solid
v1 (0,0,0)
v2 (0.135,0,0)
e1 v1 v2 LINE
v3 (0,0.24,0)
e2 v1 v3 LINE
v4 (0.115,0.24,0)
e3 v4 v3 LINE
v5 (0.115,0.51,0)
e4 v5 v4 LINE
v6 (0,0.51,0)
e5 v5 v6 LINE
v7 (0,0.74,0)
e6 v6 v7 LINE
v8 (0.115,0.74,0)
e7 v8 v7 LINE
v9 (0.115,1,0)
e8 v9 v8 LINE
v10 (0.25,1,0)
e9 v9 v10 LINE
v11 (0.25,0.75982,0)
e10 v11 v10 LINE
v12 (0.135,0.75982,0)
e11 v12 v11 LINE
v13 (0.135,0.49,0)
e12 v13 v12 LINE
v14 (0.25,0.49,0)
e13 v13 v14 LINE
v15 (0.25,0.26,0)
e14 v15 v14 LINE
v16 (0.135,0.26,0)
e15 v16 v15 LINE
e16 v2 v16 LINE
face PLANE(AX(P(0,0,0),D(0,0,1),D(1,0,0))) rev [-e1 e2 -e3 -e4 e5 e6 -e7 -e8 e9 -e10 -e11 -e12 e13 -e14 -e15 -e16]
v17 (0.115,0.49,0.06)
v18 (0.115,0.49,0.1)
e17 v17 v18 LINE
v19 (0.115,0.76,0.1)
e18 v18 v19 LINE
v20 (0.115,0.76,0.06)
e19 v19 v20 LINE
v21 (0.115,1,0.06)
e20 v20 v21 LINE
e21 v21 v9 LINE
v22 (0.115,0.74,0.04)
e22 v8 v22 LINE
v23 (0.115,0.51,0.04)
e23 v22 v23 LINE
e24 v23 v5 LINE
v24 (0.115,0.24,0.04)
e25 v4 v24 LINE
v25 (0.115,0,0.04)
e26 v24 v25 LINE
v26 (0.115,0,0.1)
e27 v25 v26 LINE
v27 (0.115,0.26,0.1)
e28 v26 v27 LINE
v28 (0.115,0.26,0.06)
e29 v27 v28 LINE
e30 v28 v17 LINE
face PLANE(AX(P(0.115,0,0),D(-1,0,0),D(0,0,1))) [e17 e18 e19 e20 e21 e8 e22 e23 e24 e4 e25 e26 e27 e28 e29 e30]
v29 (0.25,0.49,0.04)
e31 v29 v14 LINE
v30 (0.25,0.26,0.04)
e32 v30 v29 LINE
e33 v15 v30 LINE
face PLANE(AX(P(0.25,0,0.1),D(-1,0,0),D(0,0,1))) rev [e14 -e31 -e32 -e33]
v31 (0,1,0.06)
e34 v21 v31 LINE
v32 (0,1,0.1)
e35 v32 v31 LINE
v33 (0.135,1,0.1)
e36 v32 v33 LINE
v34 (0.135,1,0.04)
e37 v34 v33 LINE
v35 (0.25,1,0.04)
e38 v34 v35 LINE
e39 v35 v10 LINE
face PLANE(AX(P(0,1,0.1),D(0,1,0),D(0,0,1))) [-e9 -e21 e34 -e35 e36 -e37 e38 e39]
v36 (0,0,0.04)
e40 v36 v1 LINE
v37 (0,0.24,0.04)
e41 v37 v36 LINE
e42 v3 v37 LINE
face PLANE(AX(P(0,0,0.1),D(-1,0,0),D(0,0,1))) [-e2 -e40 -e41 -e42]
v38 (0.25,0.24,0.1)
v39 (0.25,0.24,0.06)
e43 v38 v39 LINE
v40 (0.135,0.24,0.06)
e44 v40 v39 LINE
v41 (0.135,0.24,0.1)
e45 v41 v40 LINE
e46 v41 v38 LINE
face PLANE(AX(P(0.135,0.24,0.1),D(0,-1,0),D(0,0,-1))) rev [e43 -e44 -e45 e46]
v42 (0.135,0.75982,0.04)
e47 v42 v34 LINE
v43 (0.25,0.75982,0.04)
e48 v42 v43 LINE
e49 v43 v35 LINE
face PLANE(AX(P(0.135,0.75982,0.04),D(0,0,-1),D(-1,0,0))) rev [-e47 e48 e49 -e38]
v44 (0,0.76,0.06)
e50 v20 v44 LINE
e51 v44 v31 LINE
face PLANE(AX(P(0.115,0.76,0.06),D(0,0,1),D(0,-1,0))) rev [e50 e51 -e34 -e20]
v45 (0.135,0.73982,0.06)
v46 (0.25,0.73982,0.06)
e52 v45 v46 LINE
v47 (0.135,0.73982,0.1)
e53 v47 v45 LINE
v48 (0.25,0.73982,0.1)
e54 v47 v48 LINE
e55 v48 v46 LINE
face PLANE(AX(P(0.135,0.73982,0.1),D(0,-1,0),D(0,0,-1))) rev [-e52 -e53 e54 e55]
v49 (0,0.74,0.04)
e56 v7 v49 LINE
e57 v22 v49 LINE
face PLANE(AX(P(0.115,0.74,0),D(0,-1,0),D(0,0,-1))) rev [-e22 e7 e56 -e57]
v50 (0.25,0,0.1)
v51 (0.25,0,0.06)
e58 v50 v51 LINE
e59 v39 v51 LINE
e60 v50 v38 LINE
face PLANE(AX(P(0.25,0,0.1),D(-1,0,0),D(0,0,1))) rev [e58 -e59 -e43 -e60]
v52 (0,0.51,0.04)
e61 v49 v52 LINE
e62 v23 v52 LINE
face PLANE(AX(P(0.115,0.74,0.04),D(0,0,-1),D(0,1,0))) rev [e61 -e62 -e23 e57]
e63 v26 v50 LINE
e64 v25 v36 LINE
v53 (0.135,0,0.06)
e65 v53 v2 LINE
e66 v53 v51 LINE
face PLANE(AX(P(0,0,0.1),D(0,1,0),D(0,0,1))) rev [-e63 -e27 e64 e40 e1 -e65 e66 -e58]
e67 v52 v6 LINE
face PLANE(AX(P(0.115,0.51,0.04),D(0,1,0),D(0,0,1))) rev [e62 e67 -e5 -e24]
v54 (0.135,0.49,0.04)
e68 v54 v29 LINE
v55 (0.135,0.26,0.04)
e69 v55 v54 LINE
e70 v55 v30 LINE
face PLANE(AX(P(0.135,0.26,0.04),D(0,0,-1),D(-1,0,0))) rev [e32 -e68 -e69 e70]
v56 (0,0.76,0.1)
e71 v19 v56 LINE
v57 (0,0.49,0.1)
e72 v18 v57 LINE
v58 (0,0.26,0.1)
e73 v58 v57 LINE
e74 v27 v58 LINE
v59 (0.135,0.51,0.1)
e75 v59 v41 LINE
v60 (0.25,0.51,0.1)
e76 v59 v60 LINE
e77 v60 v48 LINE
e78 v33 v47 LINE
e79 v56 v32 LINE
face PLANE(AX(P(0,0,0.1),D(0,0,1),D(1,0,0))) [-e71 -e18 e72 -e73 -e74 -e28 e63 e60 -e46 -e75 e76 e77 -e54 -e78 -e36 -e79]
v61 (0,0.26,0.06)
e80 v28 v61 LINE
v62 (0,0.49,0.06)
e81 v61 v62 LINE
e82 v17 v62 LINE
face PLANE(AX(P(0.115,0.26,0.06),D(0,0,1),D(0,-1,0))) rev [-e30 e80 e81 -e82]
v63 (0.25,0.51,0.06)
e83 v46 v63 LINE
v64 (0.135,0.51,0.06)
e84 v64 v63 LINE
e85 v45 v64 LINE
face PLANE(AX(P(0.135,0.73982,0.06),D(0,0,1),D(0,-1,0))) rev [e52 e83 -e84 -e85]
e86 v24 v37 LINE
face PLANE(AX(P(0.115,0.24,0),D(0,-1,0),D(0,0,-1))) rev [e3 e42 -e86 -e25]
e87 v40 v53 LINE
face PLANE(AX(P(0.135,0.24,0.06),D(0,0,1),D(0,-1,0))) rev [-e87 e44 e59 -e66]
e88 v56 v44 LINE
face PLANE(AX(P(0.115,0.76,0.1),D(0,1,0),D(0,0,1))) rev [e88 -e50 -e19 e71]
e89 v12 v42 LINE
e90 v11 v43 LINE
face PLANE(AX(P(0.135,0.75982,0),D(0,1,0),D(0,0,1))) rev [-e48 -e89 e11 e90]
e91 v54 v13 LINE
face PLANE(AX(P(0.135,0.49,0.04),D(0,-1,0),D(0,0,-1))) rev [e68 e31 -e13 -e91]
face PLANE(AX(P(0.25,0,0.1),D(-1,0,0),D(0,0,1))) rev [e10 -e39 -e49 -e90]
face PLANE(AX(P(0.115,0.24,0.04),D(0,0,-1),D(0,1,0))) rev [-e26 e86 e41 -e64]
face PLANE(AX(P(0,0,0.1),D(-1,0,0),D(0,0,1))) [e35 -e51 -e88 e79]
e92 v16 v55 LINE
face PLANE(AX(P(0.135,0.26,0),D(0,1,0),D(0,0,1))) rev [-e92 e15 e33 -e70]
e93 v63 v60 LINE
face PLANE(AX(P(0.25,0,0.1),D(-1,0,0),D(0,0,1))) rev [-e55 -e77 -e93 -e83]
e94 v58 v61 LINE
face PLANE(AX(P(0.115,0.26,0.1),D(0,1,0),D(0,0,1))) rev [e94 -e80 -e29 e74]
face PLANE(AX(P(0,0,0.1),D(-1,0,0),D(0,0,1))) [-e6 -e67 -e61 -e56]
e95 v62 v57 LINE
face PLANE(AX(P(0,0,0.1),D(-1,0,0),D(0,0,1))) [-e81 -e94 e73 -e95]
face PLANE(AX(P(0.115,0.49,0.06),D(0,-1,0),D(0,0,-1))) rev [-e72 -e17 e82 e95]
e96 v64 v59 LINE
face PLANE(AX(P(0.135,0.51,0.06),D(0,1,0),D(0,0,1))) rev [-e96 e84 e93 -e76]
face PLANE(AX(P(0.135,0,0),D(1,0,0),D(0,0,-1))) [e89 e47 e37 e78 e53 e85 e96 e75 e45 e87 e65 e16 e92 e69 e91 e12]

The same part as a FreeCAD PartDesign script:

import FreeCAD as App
import Part
import Sketcher
from FreeCAD import Vector

doc = App.newDocument("Part")
params = doc.addObject("Spreadsheet::Sheet", "Params")
for row, (alias, value) in enumerate([
    ("sketch1_height", "1 mm"),
    ("sketch1_width", "0.25 mm"),
    ("pad1_length", "0.1 mm"),
    ("sketch2_width", "0.26 mm"),
    ("sketch2_width2", "0.23 mm"),
    ("sketch2_width3", "0.27 mm"),
    ("sketch2_height", "0.06 mm"),
    ("sketch2_height2", "0.04 mm"),
    ("pocket1_length", "0.115 mm"),
    ("sketch3_width", "0.27 mm"),
    ("sketch3_width2", "0.24 mm"),
    ("sketch3_width3", "0.26 mm"),
    ("sketch3_width4", "0.23 mm"),
    ("sketch3_height", "0.06 mm"),
    ("pocket2_length", "0.115 mm"),
], start=1):
    params.set(f"A{row}", alias)
    params.set(f"B{row}", "=" + value)
    params.setAlias(f"B{row}", alias)

body = doc.addObject("PartDesign::Body", "Body")

# Sketch on XY plane
sketch1 = body.newObject("Sketcher::SketchObject", "Sketch")
sketch1.AttachmentSupport = (doc.getObject("XY_Plane"), [""])
sketch1.MapMode = "FlatFace"
sketch1.addGeometry(Part.LineSegment(Vector(0, 1, 0), Vector(0, 0, 0)), False)
sketch1.addGeometry(Part.LineSegment(Vector(0, 0, 0), Vector(0.25, 0, 0)), False)
sketch1.addGeometry(Part.LineSegment(Vector(0.25, 0, 0), Vector(0.25, 1, 0)), False)
sketch1.addGeometry(Part.LineSegment(Vector(0.25, 1, 0), Vector(0, 1, 0)), False)
sketch1.addConstraint(Sketcher.Constraint("Coincident", 0, 2, 1, 1))
sketch1.addConstraint(Sketcher.Constraint("Coincident", 1, 2, 2, 1))
sketch1.addConstraint(Sketcher.Constraint("Coincident", 2, 2, 3, 1))
sketch1.addConstraint(Sketcher.Constraint("Coincident", 3, 2, 0, 1))
sketch1.addConstraint(Sketcher.Constraint("Vertical", 0))
sketch1.addConstraint(Sketcher.Constraint("Horizontal", 1))
sketch1.addConstraint(Sketcher.Constraint("Vertical", 2))
sketch1.addConstraint(Sketcher.Constraint("Horizontal", 3))
sketch1.addConstraint(Sketcher.Constraint("Coincident", 0, 2, -1, 1))
sketch1.addConstraint(Sketcher.Constraint("DistanceY", 0, 2, 0, 1, 1.0))
sketch1.addConstraint(Sketcher.Constraint("DistanceX", 1, 1, 1, 2, 0.25))
sketch1.setExpression("Constraints[9]", "Params.sketch1_height")
sketch1.setExpression("Constraints[10]", "Params.sketch1_width")
pad1 = body.newObject("PartDesign::Pad", "Pad")
pad1.Profile = sketch1
pad1.setExpression("Length", "Params.pad1_length")

# Sketch on YZ plane
sketch2 = body.newObject("Sketcher::SketchObject", "Sketch001")
sketch2.AttachmentSupport = (doc.getObject("YZ_Plane"), [""])
sketch2.MapMode = "FlatFace"
sketch2.addGeometry(Part.LineSegment(Vector(0, 0.04, 0), Vector(0, 0.1, 0)), False)
sketch2.addGeometry(Part.LineSegment(Vector(0, 0.1, 0), Vector(0.26, 0.1, 0)), False)
sketch2.addGeometry(Part.LineSegment(Vector(0.26, 0.1, 0), Vector(0.26, 0.06, 0)), False)
sketch2.addGeometry(Part.LineSegment(Vector(0.26, 0.06, 0), Vector(0.49, 0.06, 0)), False)
sketch2.addGeometry(Part.LineSegment(Vector(0.49, 0.06, 0), Vector(0.49, 0.1, 0)), False)
sketch2.addGeometry(Part.LineSegment(Vector(0.49, 0.1, 0), Vector(0.76, 0.1, 0)), False)
sketch2.addGeometry(Part.LineSegment(Vector(0.76, 0.1, 0), Vector(0.76, 0.06, 0)), False)
sketch2.addGeometry(Part.LineSegment(Vector(0.76, 0.06, 0), Vector(1, 0.06, 0)), False)
sketch2.addGeometry(Part.LineSegment(Vector(1, 0.06, 0), Vector(1, 0, 0)), False)
sketch2.addGeometry(Part.LineSegment(Vector(1, 0, 0), Vector(0.74, 0, 0)), False)
sketch2.addGeometry(Part.LineSegment(Vector(0.74, 0, 0), Vector(0.74, 0.04, 0)), False)
sketch2.addGeometry(Part.LineSegment(Vector(0.74, 0.04, 0), Vector(0.51, 0.04, 0)), False)
sketch2.addGeometry(Part.LineSegment(Vector(0.51, 0.04, 0), Vector(0.51, 0, 0)), False)
sketch2.addGeometry(Part.LineSegment(Vector(0.51, 0, 0), Vector(0.24, 0, 0)), False)
sketch2.addGeometry(Part.LineSegment(Vector(0.24, 0, 0), Vector(0.24, 0.04, 0)), False)
sketch2.addGeometry(Part.LineSegment(Vector(0.24, 0.04, 0), Vector(0, 0.04, 0)), False)
sketch2.addConstraint(Sketcher.Constraint("Coincident", 0, 2, 1, 1))
sketch2.addConstraint(Sketcher.Constraint("Coincident", 1, 2, 2, 1))
sketch2.addConstraint(Sketcher.Constraint("Coincident", 2, 2, 3, 1))
sketch2.addConstraint(Sketcher.Constraint("Coincident", 3, 2, 4, 1))
sketch2.addConstraint(Sketcher.Constraint("Coincident", 4, 2, 5, 1))
sketch2.addConstraint(Sketcher.Constraint("Coincident", 5, 2, 6, 1))
sketch2.addConstraint(Sketcher.Constraint("Coincident", 6, 2, 7, 1))
sketch2.addConstraint(Sketcher.Constraint("Coincident", 7, 2, 8, 1))
sketch2.addConstraint(Sketcher.Constraint("Coincident", 8, 2, 9, 1))
sketch2.addConstraint(Sketcher.Constraint("Coincident", 9, 2, 10, 1))
sketch2.addConstraint(Sketcher.Constraint("Coincident", 10, 2, 11, 1))
sketch2.addConstraint(Sketcher.Constraint("Coincident", 11, 2, 12, 1))
sketch2.addConstraint(Sketcher.Constraint("Coincident", 12, 2, 13, 1))
sketch2.addConstraint(Sketcher.Constraint("Coincident", 13, 2, 14, 1))
sketch2.addConstraint(Sketcher.Constraint("Coincident", 14, 2, 15, 1))
sketch2.addConstraint(Sketcher.Constraint("Coincident", 15, 2, 0, 1))
sketch2.addConstraint(Sketcher.Constraint("Vertical", 0))
sketch2.addConstraint(Sketcher.Constraint("Horizontal", 1))
sketch2.addConstraint(Sketcher.Constraint("Vertical", 2))
sketch2.addConstraint(Sketcher.Constraint("Horizontal", 3))
sketch2.addConstraint(Sketcher.Constraint("Vertical", 4))
sketch2.addConstraint(Sketcher.Constraint("Horizontal", 5))
sketch2.addConstraint(Sketcher.Constraint("Vertical", 6))
sketch2.addConstraint(Sketcher.Constraint("Horizontal", 7))
sketch2.addConstraint(Sketcher.Constraint("Vertical", 8))
sketch2.addConstraint(Sketcher.Constraint("Horizontal", 9))
sketch2.addConstraint(Sketcher.Constraint("Vertical", 10))
sketch2.addConstraint(Sketcher.Constraint("Horizontal", 11))
sketch2.addConstraint(Sketcher.Constraint("Vertical", 12))
sketch2.addConstraint(Sketcher.Constraint("Horizontal", 13))
sketch2.addConstraint(Sketcher.Constraint("Vertical", 14))
sketch2.addConstraint(Sketcher.Constraint("Horizontal", 15))
sketch2.addConstraint(Sketcher.Constraint("PointOnObject", 0, 2, -2))
sketch2.addConstraint(Sketcher.Constraint("PointOnObject", 8, 2, -1))
sketch2.addConstraint(Sketcher.Constraint("PointOnObject", 12, 2, -1))
sketch2.addConstraint(Sketcher.Constraint("Horizontal", 1, 2, 4, 2))
sketch2.addConstraint(Sketcher.Constraint("Horizontal", 3, 2, 6, 2))
sketch2.addConstraint(Sketcher.Constraint("Horizontal", 11, 2, 14, 2))
sketch2.addConstraint(Sketcher.Constraint("Equal", 1, 9))
sketch2.addConstraint(Sketcher.Constraint("Equal", 3, 11))
sketch2.addConstraint(Sketcher.Constraint("Equal", 5, 13))
sketch2.addConstraint(Sketcher.Constraint("Equal", 0, 8))
sketch2.addConstraint(Sketcher.Constraint("DistanceX", -1, 1, 7, 2, 1.0))
sketch2.addConstraint(Sketcher.Constraint("DistanceX", 1, 1, 1, 2, 0.26))
sketch2.addConstraint(Sketcher.Constraint("DistanceX", 3, 1, 3, 2, 0.23))
sketch2.addConstraint(Sketcher.Constraint("DistanceX", 5, 1, 5, 2, 0.27))
sketch2.addConstraint(Sketcher.Constraint("DistanceY", 0, 1, 0, 2, 0.06))
sketch2.addConstraint(Sketcher.Constraint("DistanceY", 2, 2, 2, 1, 0.04))
sketch2.setExpression("Constraints[43]", "Params.sketch2_width")
sketch2.setExpression("Constraints[44]", "Params.sketch2_width2")
sketch2.setExpression("Constraints[45]", "Params.sketch2_width3")
sketch2.setExpression("Constraints[46]", "Params.sketch2_height")
sketch2.setExpression("Constraints[47]", "Params.sketch2_height2")
pocket1 = body.newObject("PartDesign::Pocket", "Pocket")
pocket1.Profile = sketch2
pocket1.setExpression("Length", "Params.pocket1_length")
pocket1.Reversed = True

# Sketch on YZ plane
sketch3 = body.newObject("Sketcher::SketchObject", "Sketch002")
sketch3.AttachmentSupport = (doc.getObject("YZ_Plane"), [""])
sketch3.MapMode = "FlatFace"
sketch3.AttachmentOffset = App.Placement(Vector(0, 0, 0.25), App.Rotation())
sketch3.addGeometry(Part.LineSegment(Vector(1, 0.04, 0), Vector(1, 0.1, 0)), False)
sketch3.addGeometry(Part.LineSegment(Vector(1, 0.1, 0), Vector(0.74, 0.1, 0)), False)
sketch3.addGeometry(Part.LineSegment(Vector(0.74, 0.1, 0), Vector(0.74, 0.06, 0)), False)
sketch3.addGeometry(Part.LineSegment(Vector(0.74, 0.06, 0), Vector(0.51, 0.06, 0)), False)
sketch3.addGeometry(Part.LineSegment(Vector(0.51, 0.06, 0), Vector(0.51, 0.1, 0)), False)
sketch3.addGeometry(Part.LineSegment(Vector(0.51, 0.1, 0), Vector(0.24, 0.1, 0)), False)
sketch3.addGeometry(Part.LineSegment(Vector(0.24, 0.1, 0), Vector(0.24, 0.06, 0)), False)
sketch3.addGeometry(Part.LineSegment(Vector(0.24, 0.06, 0), Vector(0, 0.06, 0)), False)
sketch3.addGeometry(Part.LineSegment(Vector(0, 0.06, 0), Vector(0, 0, 0)), False)
sketch3.addGeometry(Part.LineSegment(Vector(0, 0, 0), Vector(0.26, 0, 0)), False)
sketch3.addGeometry(Part.LineSegment(Vector(0.26, 0, 0), Vector(0.26, 0.04, 0)), False)
sketch3.addGeometry(Part.LineSegment(Vector(0.26, 0.04, 0), Vector(0.49, 0.04, 0)), False)
sketch3.addGeometry(Part.LineSegment(Vector(0.49, 0.04, 0), Vector(0.49, 0, 0)), False)
sketch3.addGeometry(Part.LineSegment(Vector(0.49, 0, 0), Vector(0.76, 0, 0)), False)
sketch3.addGeometry(Part.LineSegment(Vector(0.76, 0, 0), Vector(0.76, 0.04, 0)), False)
sketch3.addGeometry(Part.LineSegment(Vector(0.76, 0.04, 0), Vector(1, 0.04, 0)), False)
sketch3.addConstraint(Sketcher.Constraint("Coincident", 0, 2, 1, 1))
sketch3.addConstraint(Sketcher.Constraint("Coincident", 1, 2, 2, 1))
sketch3.addConstraint(Sketcher.Constraint("Coincident", 2, 2, 3, 1))
sketch3.addConstraint(Sketcher.Constraint("Coincident", 3, 2, 4, 1))
sketch3.addConstraint(Sketcher.Constraint("Coincident", 4, 2, 5, 1))
sketch3.addConstraint(Sketcher.Constraint("Coincident", 5, 2, 6, 1))
sketch3.addConstraint(Sketcher.Constraint("Coincident", 6, 2, 7, 1))
sketch3.addConstraint(Sketcher.Constraint("Coincident", 7, 2, 8, 1))
sketch3.addConstraint(Sketcher.Constraint("Coincident", 8, 2, 9, 1))
sketch3.addConstraint(Sketcher.Constraint("Coincident", 9, 2, 10, 1))
sketch3.addConstraint(Sketcher.Constraint("Coincident", 10, 2, 11, 1))
sketch3.addConstraint(Sketcher.Constraint("Coincident", 11, 2, 12, 1))
sketch3.addConstraint(Sketcher.Constraint("Coincident", 12, 2, 13, 1))
sketch3.addConstraint(Sketcher.Constraint("Coincident", 13, 2, 14, 1))
sketch3.addConstraint(Sketcher.Constraint("Coincident", 14, 2, 15, 1))
sketch3.addConstraint(Sketcher.Constraint("Coincident", 15, 2, 0, 1))
sketch3.addConstraint(Sketcher.Constraint("Vertical", 0))
sketch3.addConstraint(Sketcher.Constraint("Horizontal", 1))
sketch3.addConstraint(Sketcher.Constraint("Vertical", 2))
sketch3.addConstraint(Sketcher.Constraint("Horizontal", 3))
sketch3.addConstraint(Sketcher.Constraint("Vertical", 4))
sketch3.addConstraint(Sketcher.Constraint("Horizontal", 5))
sketch3.addConstraint(Sketcher.Constraint("Vertical", 6))
sketch3.addConstraint(Sketcher.Constraint("Horizontal", 7))
sketch3.addConstraint(Sketcher.Constraint("Vertical", 8))
sketch3.addConstraint(Sketcher.Constraint("Horizontal", 9))
sketch3.addConstraint(Sketcher.Constraint("Vertical", 10))
sketch3.addConstraint(Sketcher.Constraint("Horizontal", 11))
sketch3.addConstraint(Sketcher.Constraint("Vertical", 12))
sketch3.addConstraint(Sketcher.Constraint("Horizontal", 13))
sketch3.addConstraint(Sketcher.Constraint("Vertical", 14))
sketch3.addConstraint(Sketcher.Constraint("Horizontal", 15))
sketch3.addConstraint(Sketcher.Constraint("Coincident", 8, 2, -1, 1))
sketch3.addConstraint(Sketcher.Constraint("PointOnObject", 12, 2, -1))
sketch3.addConstraint(Sketcher.Constraint("Horizontal", 1, 2, 4, 2))
sketch3.addConstraint(Sketcher.Constraint("Horizontal", 3, 2, 6, 2))
sketch3.addConstraint(Sketcher.Constraint("Horizontal", 11, 2, 14, 2))
sketch3.addConstraint(Sketcher.Constraint("Equal", 0, 8))
sketch3.addConstraint(Sketcher.Constraint("DistanceX", -1, 1, 0, 2, 1.0))
sketch3.addConstraint(Sketcher.Constraint("DistanceX", 5, 2, 5, 1, 0.27))
sketch3.addConstraint(Sketcher.Constraint("DistanceX", 7, 2, 7, 1, 0.24))
sketch3.addConstraint(Sketcher.Constraint("DistanceX", 9, 1, 9, 2, 0.26))
sketch3.addConstraint(Sketcher.Constraint("DistanceX", 11, 1, 11, 2, 0.23))
sketch3.addConstraint(Sketcher.Constraint("DistanceY", 0, 1, 0, 2, 0.06))
sketch3.addConstraint(Sketcher.Constraint("DistanceY", 2, 2, 2, 1, 0.04))
sketch3.addConstraint(Sketcher.Constraint("DistanceX", 2, 2, 13, 2, 0.02))
sketch3.addConstraint(Sketcher.Constraint("DistanceX", 1, 2, 1, 1, 0.26018))
sketch3.setExpression("Constraints[39]", "Params.sketch3_width")
sketch3.setExpression("Constraints[40]", "Params.sketch3_width2")
sketch3.setExpression("Constraints[41]", "Params.sketch3_width3")
sketch3.setExpression("Constraints[42]", "Params.sketch3_width4")
sketch3.setExpression("Constraints[43]", "Params.sketch3_height")
pocket2 = body.newObject("PartDesign::Pocket", "Pocket001")
pocket2.Profile = sketch3
pocket2.setExpression("Length", "Params.pocket2_length")

doc.recompute()
